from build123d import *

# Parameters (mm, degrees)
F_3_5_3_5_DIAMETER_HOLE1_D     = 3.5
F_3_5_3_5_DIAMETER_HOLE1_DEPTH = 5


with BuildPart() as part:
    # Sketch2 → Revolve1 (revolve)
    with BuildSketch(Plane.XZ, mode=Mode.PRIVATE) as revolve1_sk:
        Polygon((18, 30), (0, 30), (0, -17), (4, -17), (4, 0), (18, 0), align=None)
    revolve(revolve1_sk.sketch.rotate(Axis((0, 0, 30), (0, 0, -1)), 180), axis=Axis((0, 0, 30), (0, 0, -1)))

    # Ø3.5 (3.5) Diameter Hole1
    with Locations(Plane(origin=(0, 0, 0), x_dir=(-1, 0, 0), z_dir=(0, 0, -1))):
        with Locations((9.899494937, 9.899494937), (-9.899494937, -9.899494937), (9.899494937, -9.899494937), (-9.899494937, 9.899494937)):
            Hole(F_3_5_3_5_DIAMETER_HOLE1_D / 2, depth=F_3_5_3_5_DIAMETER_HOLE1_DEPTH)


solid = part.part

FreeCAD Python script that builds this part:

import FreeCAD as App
import Part
import Sketcher
from FreeCAD import Vector
Q = App.Units.Quantity

doc = App.newDocument("Part")
body = doc.addObject("PartDesign::Body", "Body")

sketch1 = body.newObject("Sketcher::SketchObject", "Sketch")
sketch1.AttachmentSupport = (doc.getObject("XZ_Plane"), [""])
sketch1.MapMode = "FlatFace"
sketch1.addGeometry([
    Part.LineSegment(Vector(18, 30, 0), Vector(0, 30, 0)),
    Part.LineSegment(Vector(0, 30, 0), Vector(0, -17, 0)),
    Part.LineSegment(Vector(0, -17, 0), Vector(4, -17, 0)),
    Part.LineSegment(Vector(4, -17, 0), Vector(4, 0, 0)),
    Part.LineSegment(Vector(4, 0, 0), Vector(18, 0, 0)),
    Part.LineSegment(Vector(18, 0, 0), Vector(18, 30, 0)),
], False)
sketch1.addConstraint([
    Sketcher.Constraint("Coincident", 0, 2, 1, 1),
    Sketcher.Constraint("Coincident", 1, 2, 2, 1),
    Sketcher.Constraint("Coincident", 2, 2, 3, 1),
    Sketcher.Constraint("Coincident", 3, 2, 4, 1),
    Sketcher.Constraint("Coincident", 4, 2, 5, 1),
    Sketcher.Constraint("Coincident", 5, 2, 0, 1),
    Sketcher.Constraint("Horizontal", 0),
    Sketcher.Constraint("Vertical", 1),
    Sketcher.Constraint("Horizontal", 2),
    Sketcher.Constraint("Vertical", 3),
    Sketcher.Constraint("Horizontal", 4),
    Sketcher.Constraint("Vertical", 5),
    Sketcher.Constraint("PointOnObject", 0, 2, -2),
    Sketcher.Constraint("PointOnObject", 3, 2, -1),
    Sketcher.Constraint("DistanceX", 0, 2, 0, 1, Q("18 mm")),
    Sketcher.Constraint("DistanceX", 2, 1, 2, 2, Q("4 mm")),
    Sketcher.Constraint("DistanceY", 1, 2, 1, 1, Q("47 mm")),
    Sketcher.Constraint("DistanceY", 3, 1, 3, 2, Q("17 mm")),
])
revolution = body.newObject("PartDesign::Revolution", "Revolution")
revolution.Profile = sketch1
revolution.ReferenceAxis = (sketch1, ["V_Axis"])
revolution.Angle = 360

sketch2 = body.newObject("Sketcher::SketchObject", "Sketch001")
sketch2.AttachmentSupport = (doc.getObject("XY_Plane"), [""])
sketch2.MapMode = "FlatFace"
sketch2.addGeometry([
    Part.Circle(Vector(-9.9, 9.9, 0), Vector(0, 0, 1), 1.8),
    Part.Circle(Vector(9.9, -9.9, 0), Vector(0, 0, 1), 1.8),
    Part.Circle(Vector(-9.9, -9.9, 0), Vector(0, 0, 1), 1.8),
    Part.Circle(Vector(9.9, 9.9, 0), Vector(0, 0, 1), 1.8),
], False)
sketch2.addConstraint([
    Sketcher.Constraint("Equal", 0, 1),
    Sketcher.Constraint("Equal", 1, 2),
    Sketcher.Constraint("Equal", 2, 3),
    Sketcher.Constraint("Symmetric", 0, 3, 1, 3, -1, 1),
    Sketcher.Constraint("Symmetric", 2, 3, 3, 3, -1, 1),
    Sketcher.Constraint("Symmetric", 1, 3, 2, 3, -2),
    Sketcher.Constraint("Diameter", 0, Q("3.5 mm")),
    Sketcher.Constraint("DistanceX", 0, 3, 1, 3, Q("19.79899 mm")),
    Sketcher.Constraint("DistanceY", 1, 3, 0, 3, Q("19.79899 mm")),
])
doc.recompute()
hole = body.newObject("PartDesign::Hole", "Hole")
hole.Profile = sketch2
hole.ThreadType = "None"
hole.Diameter = 3.5
hole.DepthType = "Dimension"
hole.Depth = 5
hole.DrillPoint = "Flat"
hole.Reversed = True

doc.recompute()
